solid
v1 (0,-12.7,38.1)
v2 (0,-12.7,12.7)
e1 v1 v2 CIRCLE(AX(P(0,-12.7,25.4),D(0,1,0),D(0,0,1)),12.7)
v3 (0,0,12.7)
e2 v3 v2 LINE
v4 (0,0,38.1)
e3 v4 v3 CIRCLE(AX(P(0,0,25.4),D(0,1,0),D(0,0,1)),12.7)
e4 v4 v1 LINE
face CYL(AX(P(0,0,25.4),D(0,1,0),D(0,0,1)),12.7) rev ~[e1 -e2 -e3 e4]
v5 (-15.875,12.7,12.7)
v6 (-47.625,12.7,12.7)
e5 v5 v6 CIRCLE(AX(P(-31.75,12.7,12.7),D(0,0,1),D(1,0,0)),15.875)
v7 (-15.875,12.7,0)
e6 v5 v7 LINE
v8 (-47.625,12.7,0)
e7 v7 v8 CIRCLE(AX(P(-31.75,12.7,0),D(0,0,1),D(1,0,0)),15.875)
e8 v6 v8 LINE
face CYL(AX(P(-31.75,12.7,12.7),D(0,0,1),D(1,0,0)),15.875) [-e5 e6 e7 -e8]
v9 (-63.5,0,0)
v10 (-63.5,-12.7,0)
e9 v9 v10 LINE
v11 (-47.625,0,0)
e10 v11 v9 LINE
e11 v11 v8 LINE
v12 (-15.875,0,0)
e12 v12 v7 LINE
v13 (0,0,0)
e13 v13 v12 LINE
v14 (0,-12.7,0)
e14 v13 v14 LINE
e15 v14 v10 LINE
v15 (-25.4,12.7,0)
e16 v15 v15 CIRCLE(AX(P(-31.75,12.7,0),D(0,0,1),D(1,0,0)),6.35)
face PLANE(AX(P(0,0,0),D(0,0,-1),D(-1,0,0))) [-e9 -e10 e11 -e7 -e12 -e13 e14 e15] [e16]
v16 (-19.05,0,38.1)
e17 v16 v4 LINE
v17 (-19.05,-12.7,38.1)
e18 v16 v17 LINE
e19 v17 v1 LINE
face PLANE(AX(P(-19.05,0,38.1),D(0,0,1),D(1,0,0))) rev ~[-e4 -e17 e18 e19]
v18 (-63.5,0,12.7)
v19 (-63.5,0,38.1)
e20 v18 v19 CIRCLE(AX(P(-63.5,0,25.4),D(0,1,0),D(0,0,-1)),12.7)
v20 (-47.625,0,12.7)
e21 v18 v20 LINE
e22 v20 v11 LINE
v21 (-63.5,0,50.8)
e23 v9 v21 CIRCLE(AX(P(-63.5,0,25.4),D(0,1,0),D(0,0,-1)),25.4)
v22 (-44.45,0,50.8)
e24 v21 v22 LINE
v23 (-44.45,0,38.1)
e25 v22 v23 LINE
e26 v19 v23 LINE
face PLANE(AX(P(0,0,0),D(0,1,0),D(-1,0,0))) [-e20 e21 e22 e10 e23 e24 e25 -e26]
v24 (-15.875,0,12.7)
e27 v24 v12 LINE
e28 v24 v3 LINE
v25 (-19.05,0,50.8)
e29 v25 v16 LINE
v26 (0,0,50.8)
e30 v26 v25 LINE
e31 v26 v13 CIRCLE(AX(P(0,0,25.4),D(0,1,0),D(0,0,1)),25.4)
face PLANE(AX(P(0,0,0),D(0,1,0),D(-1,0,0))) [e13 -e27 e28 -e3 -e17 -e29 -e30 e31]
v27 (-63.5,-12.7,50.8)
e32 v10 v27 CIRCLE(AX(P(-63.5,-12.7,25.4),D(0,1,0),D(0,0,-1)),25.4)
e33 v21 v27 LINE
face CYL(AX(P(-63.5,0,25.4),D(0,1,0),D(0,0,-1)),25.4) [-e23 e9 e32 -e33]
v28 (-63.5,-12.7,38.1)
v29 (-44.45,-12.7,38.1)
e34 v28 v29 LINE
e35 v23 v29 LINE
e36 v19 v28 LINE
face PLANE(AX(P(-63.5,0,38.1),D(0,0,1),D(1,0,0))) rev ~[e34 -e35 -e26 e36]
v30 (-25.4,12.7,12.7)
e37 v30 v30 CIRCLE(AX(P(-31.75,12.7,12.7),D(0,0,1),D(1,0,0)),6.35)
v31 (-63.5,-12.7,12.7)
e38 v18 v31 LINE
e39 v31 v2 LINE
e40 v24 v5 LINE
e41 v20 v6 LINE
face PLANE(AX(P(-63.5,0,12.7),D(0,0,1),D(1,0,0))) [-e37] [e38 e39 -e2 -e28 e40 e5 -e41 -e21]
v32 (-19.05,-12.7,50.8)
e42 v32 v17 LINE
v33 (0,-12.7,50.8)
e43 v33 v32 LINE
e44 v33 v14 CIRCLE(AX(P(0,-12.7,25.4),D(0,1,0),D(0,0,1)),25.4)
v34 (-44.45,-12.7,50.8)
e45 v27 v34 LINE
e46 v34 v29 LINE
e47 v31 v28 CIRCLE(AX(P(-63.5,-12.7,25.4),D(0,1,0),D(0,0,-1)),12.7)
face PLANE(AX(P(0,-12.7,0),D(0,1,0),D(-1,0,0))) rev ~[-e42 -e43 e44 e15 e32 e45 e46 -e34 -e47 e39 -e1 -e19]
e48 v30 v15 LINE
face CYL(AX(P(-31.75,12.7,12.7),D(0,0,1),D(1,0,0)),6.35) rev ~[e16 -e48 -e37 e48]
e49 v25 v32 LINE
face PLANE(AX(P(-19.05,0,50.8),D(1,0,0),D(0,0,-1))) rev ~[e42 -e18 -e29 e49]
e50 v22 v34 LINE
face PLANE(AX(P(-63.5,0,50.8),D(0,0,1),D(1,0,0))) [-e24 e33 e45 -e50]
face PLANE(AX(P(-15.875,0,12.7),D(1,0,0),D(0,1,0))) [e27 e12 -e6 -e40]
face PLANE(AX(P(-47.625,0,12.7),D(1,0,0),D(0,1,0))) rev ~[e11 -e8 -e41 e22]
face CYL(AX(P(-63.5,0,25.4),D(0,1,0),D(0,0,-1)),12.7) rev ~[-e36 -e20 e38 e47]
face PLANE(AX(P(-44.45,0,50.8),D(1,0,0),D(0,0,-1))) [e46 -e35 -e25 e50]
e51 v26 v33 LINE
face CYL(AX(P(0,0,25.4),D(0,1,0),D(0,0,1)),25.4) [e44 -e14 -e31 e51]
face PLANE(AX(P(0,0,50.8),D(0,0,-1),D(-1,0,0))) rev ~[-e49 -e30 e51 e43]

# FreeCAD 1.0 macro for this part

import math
import FreeCAD as App
import Part
import Sketcher

V = App.Vector
Q = App.Units.Quantity

doc = App.newDocument("Part")
body = doc.addObject("PartDesign::Body", "Body")

# Sketch on XZ plane
sketch1 = body.newObject("Sketcher::SketchObject", "Sketch")
sketch1.AttachmentSupport = (doc.getObject("XZ_Plane"), [""])
sketch1.MapMode = "FlatFace"
sketch1.addGeometry(Part.ArcOfCircle(Part.Circle(V(0, 25, 0), V(0, 0, 1), 25), math.radians(-90), math.radians(90)), False)
sketch1.addGeometry(Part.LineSegment(V(0, 0, 0), V(-64, 0, 0)), False)
sketch1.addGeometry(Part.ArcOfCircle(Part.Circle(V(-64, 25, 0), V(0, 0, 1), 25), math.radians(90), math.radians(270)), False)
sketch1.addGeometry(Part.LineSegment(V(-64, 51, 0), V(-44, 51, 0)), False)
sketch1.addGeometry(Part.LineSegment(V(-44, 51, 0), V(-44, 38, 0)), False)
sketch1.addGeometry(Part.LineSegment(V(-44, 38, 0), V(-64, 38, 0)), False)
sketch1.addGeometry(Part.ArcOfCircle(Part.Circle(V(-64, 25, 0), V(0, 0, 1), 13), math.radians(90), math.radians(270)), False)
sketch1.addGeometry(Part.LineSegment(V(-64, 13, 0), V(0, 13, 0)), False)
sketch1.addGeometry(Part.ArcOfCircle(Part.Circle(V(0, 25, 0), V(0, 0, 1), 13), math.radians(-90), math.radians(90)), False)
sketch1.addGeometry(Part.LineSegment(V(0, 38, 0), V(-19, 38, 0)), False)
sketch1.addGeometry(Part.LineSegment(V(-19, 38, 0), V(-19, 51, 0)), False)
sketch1.addGeometry(Part.LineSegment(V(-19, 51, 0), V(0, 51, 0)), False)
sketch1.addConstraint(Sketcher.Constraint("Tangent", 0, 1, 1, 1))
sketch1.addConstraint(Sketcher.Constraint("Tangent", 1, 2, 2, 2))
sketch1.addConstraint(Sketcher.Constraint("Tangent", 2, 1, 3, 1))
sketch1.addConstraint(Sketcher.Constraint("Coincident", 3, 2, 4, 1))
sketch1.addConstraint(Sketcher.Constraint("Coincident", 4, 2, 5, 1))
sketch1.addConstraint(Sketcher.Constraint("Tangent", 5, 2, 6, 1))
sketch1.addConstraint(Sketcher.Constraint("Tangent", 6, 2, 7, 1))
sketch1.addConstraint(Sketcher.Constraint("Tangent", 7, 2, 8, 1))
sketch1.addConstraint(Sketcher.Constraint("Tangent", 8, 2, 9, 1))
sketch1.addConstraint(Sketcher.Constraint("Coincident", 9, 2, 10, 1))
sketch1.addConstraint(Sketcher.Constraint("Coincident", 10, 2, 11, 1))
sketch1.addConstraint(Sketcher.Constraint("Tangent", 11, 2, 0, 2))
sketch1.addConstraint(Sketcher.Constraint("Horizontal", 1))
sketch1.addConstraint(Sketcher.Constraint("Horizontal", 3))
sketch1.addConstraint(Sketcher.Constraint("Vertical", 4))
sketch1.addConstraint(Sketcher.Constraint("Horizontal", 5))
sketch1.addConstraint(Sketcher.Constraint("Horizontal", 7))
sketch1.addConstraint(Sketcher.Constraint("Horizontal", 9))
sketch1.addConstraint(Sketcher.Constraint("Vertical", 10))
sketch1.addConstraint(Sketcher.Constraint("Horizontal", 11))
sketch1.addConstraint(Sketcher.Constraint("Coincident", 0, 1, -1, 1))
sketch1.addConstraint(Sketcher.Constraint("Coincident", 6, 3, 2, 3))
sketch1.addConstraint(Sketcher.Constraint("Coincident", 8, 3, 0, 3))
sketch1.addConstraint(Sketcher.Constraint("Equal", 0, 2))
sketch1.addConstraint(Sketcher.Constraint("Equal", 5, 9))
sketch1.addConstraint(Sketcher.Constraint("Radius", 0, Q("1 in")))
sketch1.addConstraint(Sketcher.Constraint("Radius", 6, Q("0.5 in")))
sketch1.addConstraint(Sketcher.Constraint("DistanceX", 1, 2, 1, 1, Q("2.5 in")))
sketch1.addConstraint(Sketcher.Constraint("DistanceX", 4, 2, 9, 2, Q("1 in")))
pad1 = body.newObject("PartDesign::Pad", "Pad")
pad1.Profile = sketch1
pad1.Length = Q("0.5 in")

# Sketch on XY plane
sketch2 = body.newObject("Sketcher::SketchObject", "Sketch001")
sketch2.AttachmentSupport = (doc.getObject("XY_Plane"), [""])
sketch2.MapMode = "FlatFace"
sketch2.AttachmentOffset = App.Placement(V(0, 0, 0.5 * 25.4), App.Rotation())
sketch2.addGeometry(Part.LineSegment(V(-48, 0, 0), V(-16, 0, 0)), False)
sketch2.addGeometry(Part.LineSegment(V(-16, 0, 0), V(-16, 13, 0)), False)
sketch2.addGeometry(Part.ArcOfCircle(Part.Circle(V(-32, 13, 0), V(0, 0, 1), 16), math.radians(0), math.radians(180)), False)
sketch2.addGeometry(Part.LineSegment(V(-48, 13, 0), V(-48, 0, 0)), False)
sketch2.addGeometry(Part.Circle(V(-32, 13, 0), V(0, 0, 1), 6), False)
sketch2.addConstraint(Sketcher.Constraint("Coincident", 0, 2, 1, 1))
sketch2.addConstraint(Sketcher.Constraint("Tangent", 1, 2, 2, 1))
sketch2.addConstraint(Sketcher.Constraint("Tangent", 2, 2, 3, 1))
sketch2.addConstraint(Sketcher.Constraint("Coincident", 3, 2, 0, 1))
sketch2.addConstraint(Sketcher.Constraint("Horizontal", 0))
sketch2.addConstraint(Sketcher.Constraint("Vertical", 1))
sketch2.addConstraint(Sketcher.Constraint("Vertical", 3))
sketch2.addConstraint(Sketcher.Constraint("Coincident", 4, 3, 2, 3))
sketch2.addConstraint(Sketcher.Constraint("PointOnObject", 0, 2, -1))
sketch2.addConstraint(Sketcher.Constraint("Diameter", 4, Q("0.5 in")))
sketch2.addConstraint(Sketcher.Constraint("DistanceY", 1, 1, 1, 2, Q("0.5 in")))
sketch2.addConstraint(Sketcher.Constraint("Radius", 2, Q("0.625 in")))
sketch2.addConstraint(Sketcher.Constraint("DistanceX", 0, 2, -1, 1, Q("0.625 in")))
pad2 = body.newObject("PartDesign::Pad", "Pad001")
pad2.Profile = sketch2
pad2.Length = Q("0.5 in")
pad2.Reversed = True

doc.recompute()
